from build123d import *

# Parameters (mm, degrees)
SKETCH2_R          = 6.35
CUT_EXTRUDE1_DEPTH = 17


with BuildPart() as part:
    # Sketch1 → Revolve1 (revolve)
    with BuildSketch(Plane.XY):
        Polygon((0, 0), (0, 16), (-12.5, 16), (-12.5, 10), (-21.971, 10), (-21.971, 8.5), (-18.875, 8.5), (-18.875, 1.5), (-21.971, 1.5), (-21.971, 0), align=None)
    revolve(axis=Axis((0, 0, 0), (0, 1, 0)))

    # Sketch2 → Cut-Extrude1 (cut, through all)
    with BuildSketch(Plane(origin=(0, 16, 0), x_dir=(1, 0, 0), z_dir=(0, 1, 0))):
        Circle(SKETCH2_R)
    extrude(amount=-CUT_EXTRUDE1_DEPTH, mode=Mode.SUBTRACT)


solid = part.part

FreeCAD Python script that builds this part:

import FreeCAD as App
import Part
import Sketcher
from FreeCAD import Vector

doc = App.newDocument("Part")
params = doc.addObject("Spreadsheet::Sheet", "Params")
for row, (alias, value) in enumerate([
    ("sketch1_height", "16 mm"),
    ("sketch1_height2", "6 mm"),
    ("sketch1_height3", "7 mm"),
    ("sketch1_width", "12.5 mm"),
    ("revolution_angle", "360 deg"),
    ("sketch2_diameter", "12.7 mm"),
], start=1):
    params.set(f"A{row}", alias)
    params.set(f"B{row}", "=" + value)
    params.setAlias(f"B{row}", alias)

body = doc.addObject("PartDesign::Body", "Body")

# Sketch on XY plane
sketch1 = body.newObject("Sketcher::SketchObject", "Sketch")
sketch1.AttachmentSupport = (doc.getObject("XY_Plane"), [""])
sketch1.MapMode = "FlatFace"
sketch1.addGeometry([
    Part.LineSegment(Vector(0, 0, 0), Vector(0, 16, 0)),  # 0
    Part.LineSegment(Vector(0, 16, 0), Vector(-12.5, 16, 0)),  # 1
    Part.LineSegment(Vector(-12.5, 16, 0), Vector(-12.5, 10, 0)),  # 2
    Part.LineSegment(Vector(-12.5, 10, 0), Vector(-21.971, 10, 0)),  # 3
    Part.LineSegment(Vector(-21.971, 10, 0), Vector(-21.971, 8.5, 0)),  # 4
    Part.LineSegment(Vector(-21.971, 8.5, 0), Vector(-18.875, 8.5, 0)),  # 5
    Part.LineSegment(Vector(-18.875, 8.5, 0), Vector(-18.875, 1.5, 0)),  # 6
    Part.LineSegment(Vector(-18.875, 1.5, 0), Vector(-21.971, 1.5, 0)),  # 7
    Part.LineSegment(Vector(-21.971, 1.5, 0), Vector(-21.971, 0, 0)),  # 8
    Part.LineSegment(Vector(-21.971, 0, 0), Vector(0, 0, 0)),  # 9
], False)
sketch1.addConstraint([
    Sketcher.Constraint("Coincident", 0, 2, 1, 1),
    Sketcher.Constraint("Coincident", 1, 2, 2, 1),
    Sketcher.Constraint("Coincident", 2, 2, 3, 1),
    Sketcher.Constraint("Coincident", 3, 2, 4, 1),
    Sketcher.Constraint("Coincident", 4, 2, 5, 1),
    Sketcher.Constraint("Coincident", 5, 2, 6, 1),
    Sketcher.Constraint("Coincident", 6, 2, 7, 1),
    Sketcher.Constraint("Coincident", 7, 2, 8, 1),
    Sketcher.Constraint("Coincident", 8, 2, 9, 1),
    Sketcher.Constraint("Coincident", 9, 2, 0, 1),
    Sketcher.Constraint("Vertical", 0),
    Sketcher.Constraint("Horizontal", 1),
    Sketcher.Constraint("Vertical", 2),
    Sketcher.Constraint("Horizontal", 3),
    Sketcher.Constraint("Vertical", 4),
    Sketcher.Constraint("Horizontal", 5),
    Sketcher.Constraint("Vertical", 6),
    Sketcher.Constraint("Horizontal", 7),
    Sketcher.Constraint("Vertical", 8),
    Sketcher.Constraint("Horizontal", 9),
    Sketcher.Constraint("Coincident", 9, 2, -1, 1),
    Sketcher.Constraint("Vertical", 4, 2, 7, 2),
    Sketcher.Constraint("Equal", 4, 8),
    Sketcher.Constraint("DistanceY", 0, 1, 0, 2, 16.0),
    Sketcher.Constraint("DistanceY", 2, 2, 2, 1, 6.0),
    Sketcher.Constraint("DistanceY", 6, 2, 6, 1, 7.0),
    Sketcher.Constraint("DistanceX", 1, 2, 1, 1, 12.5),
    Sketcher.Constraint("DistanceX", 3, 2, 3, 1, 9.471),
    Sketcher.Constraint("DistanceX", 5, 1, 5, 2, 3.096),
])
sketch1.setExpression("Constraints[23]", "Params.sketch1_height")
sketch1.setExpression("Constraints[24]", "Params.sketch1_height2")
sketch1.setExpression("Constraints[25]", "Params.sketch1_height3")
sketch1.setExpression("Constraints[26]", "Params.sketch1_width")
revolution = body.newObject("PartDesign::Revolution", "Revolution")
revolution.Profile = sketch1
revolution.ReferenceAxis = (sketch1, ["V_Axis"])
revolution.setExpression("Angle", "Params.revolution_angle")

# Sketch on XZ plane
sketch2 = body.newObject("Sketcher::SketchObject", "Sketch001")
sketch2.AttachmentSupport = (doc.getObject("XZ_Plane"), [""])
sketch2.MapMode = "FlatFace"
sketch2.AttachmentOffset = App.Placement(Vector(0, 0, -16), App.Rotation())
sketch2.addGeometry(Part.Circle(Vector(0, 0, 0), Vector(0, 0, 1), 6.35), False)
sketch2.addConstraint([
    Sketcher.Constraint("Coincident", 0, 3, -1, 1),
    Sketcher.Constraint("Diameter", 0, 12.7),
])
sketch2.setExpression("Constraints[1]", "Params.sketch2_diameter")
pocket1 = body.newObject("PartDesign::Pocket", "Pocket")
pocket1.Profile = sketch2
pocket1.Type = "ThroughAll"
pocket1.Reversed = True

doc.recompute()
